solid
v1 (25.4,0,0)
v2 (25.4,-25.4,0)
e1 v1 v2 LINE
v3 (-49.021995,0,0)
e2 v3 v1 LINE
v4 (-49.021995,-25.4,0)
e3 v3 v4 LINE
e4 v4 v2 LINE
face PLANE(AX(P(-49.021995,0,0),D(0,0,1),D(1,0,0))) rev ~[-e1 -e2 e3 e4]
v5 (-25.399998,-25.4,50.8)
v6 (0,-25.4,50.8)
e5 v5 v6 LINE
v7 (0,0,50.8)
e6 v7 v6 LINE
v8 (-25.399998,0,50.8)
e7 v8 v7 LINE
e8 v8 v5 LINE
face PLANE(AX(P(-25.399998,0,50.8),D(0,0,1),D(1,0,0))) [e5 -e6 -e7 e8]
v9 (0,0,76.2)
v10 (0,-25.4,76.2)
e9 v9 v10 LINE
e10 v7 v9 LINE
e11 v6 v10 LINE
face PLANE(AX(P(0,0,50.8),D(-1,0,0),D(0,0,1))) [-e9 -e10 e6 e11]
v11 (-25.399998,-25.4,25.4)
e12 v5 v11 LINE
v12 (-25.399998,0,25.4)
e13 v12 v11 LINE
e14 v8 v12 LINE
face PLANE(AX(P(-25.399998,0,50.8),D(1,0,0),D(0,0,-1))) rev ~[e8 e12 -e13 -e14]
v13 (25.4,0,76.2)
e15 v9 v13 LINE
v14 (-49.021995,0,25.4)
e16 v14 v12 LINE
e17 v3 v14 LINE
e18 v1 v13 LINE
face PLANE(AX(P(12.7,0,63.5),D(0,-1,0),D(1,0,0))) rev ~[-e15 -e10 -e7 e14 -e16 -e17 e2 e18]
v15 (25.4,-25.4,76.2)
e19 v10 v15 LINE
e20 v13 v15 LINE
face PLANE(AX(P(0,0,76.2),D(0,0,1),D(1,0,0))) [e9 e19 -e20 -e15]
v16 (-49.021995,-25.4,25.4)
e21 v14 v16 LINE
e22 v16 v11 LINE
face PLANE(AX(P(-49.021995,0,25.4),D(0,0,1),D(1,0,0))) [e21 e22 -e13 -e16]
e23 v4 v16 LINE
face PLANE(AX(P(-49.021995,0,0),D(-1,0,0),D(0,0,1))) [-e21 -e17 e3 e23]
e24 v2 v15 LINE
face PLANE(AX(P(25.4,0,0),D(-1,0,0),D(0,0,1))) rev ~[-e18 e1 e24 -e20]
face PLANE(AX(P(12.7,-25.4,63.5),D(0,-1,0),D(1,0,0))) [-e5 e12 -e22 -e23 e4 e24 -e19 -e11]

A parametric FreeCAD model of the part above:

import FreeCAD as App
import Part
import Sketcher

V = App.Vector
Q = App.Units.Quantity

doc = App.newDocument("Part")
body = doc.addObject("PartDesign::Body", "Body")

# Sketch on XZ plane
sketch1 = doc.addObject("Sketcher::SketchObject", "Sketch")
body.addObject(sketch1)
sketch1.AttachmentSupport = (doc.XZ_Plane, [""])
sketch1.MapMode = "FlatFace"
sketch1.addGeometry([
    Part.LineSegment(V(0, 76, 0), V(0, 51, 0)),  # 0
    Part.LineSegment(V(0, 51, 0), V(-25, 51, 0)),  # 1
    Part.LineSegment(V(-25, 51, 0), V(-25, 25, 0)),  # 2
    Part.LineSegment(V(-25, 25, 0), V(-49, 25, 0)),  # 3
    Part.LineSegment(V(-49, 25, 0), V(-49, 0, 0)),  # 4
    Part.LineSegment(V(-49, 0, 0), V(25, 0, 0)),  # 5
    Part.LineSegment(V(25, 0, 0), V(25, 76, 0)),  # 6
    Part.LineSegment(V(25, 76, 0), V(0, 76, 0)),  # 7
], False)
sketch1.addConstraint([
    Sketcher.Constraint("Coincident", 0, 2, 1, 1),
    Sketcher.Constraint("Coincident", 1, 2, 2, 1),
    Sketcher.Constraint("Coincident", 2, 2, 3, 1),
    Sketcher.Constraint("Coincident", 3, 2, 4, 1),
    Sketcher.Constraint("Coincident", 4, 2, 5, 1),
    Sketcher.Constraint("Coincident", 5, 2, 6, 1),
    Sketcher.Constraint("Coincident", 6, 2, 7, 1),
    Sketcher.Constraint("Coincident", 7, 2, 0, 1),
    Sketcher.Constraint("Vertical", 0),
    Sketcher.Constraint("Horizontal", 1),
    Sketcher.Constraint("Vertical", 2),
    Sketcher.Constraint("Horizontal", 3),
    Sketcher.Constraint("Vertical", 4),
    Sketcher.Constraint("Horizontal", 5),
    Sketcher.Constraint("Vertical", 6),
    Sketcher.Constraint("Horizontal", 7),
    Sketcher.Constraint("PointOnObject", 0, 2, -2),
    Sketcher.Constraint("PointOnObject", 4, 2, -1),
    Sketcher.Constraint("Equal", 1, 7),
    Sketcher.Constraint("Equal", 7, 0),
    Sketcher.Constraint("Equal", 0, 2),
    Sketcher.Constraint("Equal", 2, 4),
    Sketcher.Constraint("DistanceX", 1, 2, 1, 1, Q("0.9999999 in")),
    Sketcher.Constraint("DistanceX", 3, 2, 3, 1, Q("0.9299999 in")),
])
pad1 = doc.addObject("PartDesign::Pad", "Pad")
body.addObject(pad1)
pad1.Profile = sketch1
pad1.Length = Q("1 in")

doc.recompute()
